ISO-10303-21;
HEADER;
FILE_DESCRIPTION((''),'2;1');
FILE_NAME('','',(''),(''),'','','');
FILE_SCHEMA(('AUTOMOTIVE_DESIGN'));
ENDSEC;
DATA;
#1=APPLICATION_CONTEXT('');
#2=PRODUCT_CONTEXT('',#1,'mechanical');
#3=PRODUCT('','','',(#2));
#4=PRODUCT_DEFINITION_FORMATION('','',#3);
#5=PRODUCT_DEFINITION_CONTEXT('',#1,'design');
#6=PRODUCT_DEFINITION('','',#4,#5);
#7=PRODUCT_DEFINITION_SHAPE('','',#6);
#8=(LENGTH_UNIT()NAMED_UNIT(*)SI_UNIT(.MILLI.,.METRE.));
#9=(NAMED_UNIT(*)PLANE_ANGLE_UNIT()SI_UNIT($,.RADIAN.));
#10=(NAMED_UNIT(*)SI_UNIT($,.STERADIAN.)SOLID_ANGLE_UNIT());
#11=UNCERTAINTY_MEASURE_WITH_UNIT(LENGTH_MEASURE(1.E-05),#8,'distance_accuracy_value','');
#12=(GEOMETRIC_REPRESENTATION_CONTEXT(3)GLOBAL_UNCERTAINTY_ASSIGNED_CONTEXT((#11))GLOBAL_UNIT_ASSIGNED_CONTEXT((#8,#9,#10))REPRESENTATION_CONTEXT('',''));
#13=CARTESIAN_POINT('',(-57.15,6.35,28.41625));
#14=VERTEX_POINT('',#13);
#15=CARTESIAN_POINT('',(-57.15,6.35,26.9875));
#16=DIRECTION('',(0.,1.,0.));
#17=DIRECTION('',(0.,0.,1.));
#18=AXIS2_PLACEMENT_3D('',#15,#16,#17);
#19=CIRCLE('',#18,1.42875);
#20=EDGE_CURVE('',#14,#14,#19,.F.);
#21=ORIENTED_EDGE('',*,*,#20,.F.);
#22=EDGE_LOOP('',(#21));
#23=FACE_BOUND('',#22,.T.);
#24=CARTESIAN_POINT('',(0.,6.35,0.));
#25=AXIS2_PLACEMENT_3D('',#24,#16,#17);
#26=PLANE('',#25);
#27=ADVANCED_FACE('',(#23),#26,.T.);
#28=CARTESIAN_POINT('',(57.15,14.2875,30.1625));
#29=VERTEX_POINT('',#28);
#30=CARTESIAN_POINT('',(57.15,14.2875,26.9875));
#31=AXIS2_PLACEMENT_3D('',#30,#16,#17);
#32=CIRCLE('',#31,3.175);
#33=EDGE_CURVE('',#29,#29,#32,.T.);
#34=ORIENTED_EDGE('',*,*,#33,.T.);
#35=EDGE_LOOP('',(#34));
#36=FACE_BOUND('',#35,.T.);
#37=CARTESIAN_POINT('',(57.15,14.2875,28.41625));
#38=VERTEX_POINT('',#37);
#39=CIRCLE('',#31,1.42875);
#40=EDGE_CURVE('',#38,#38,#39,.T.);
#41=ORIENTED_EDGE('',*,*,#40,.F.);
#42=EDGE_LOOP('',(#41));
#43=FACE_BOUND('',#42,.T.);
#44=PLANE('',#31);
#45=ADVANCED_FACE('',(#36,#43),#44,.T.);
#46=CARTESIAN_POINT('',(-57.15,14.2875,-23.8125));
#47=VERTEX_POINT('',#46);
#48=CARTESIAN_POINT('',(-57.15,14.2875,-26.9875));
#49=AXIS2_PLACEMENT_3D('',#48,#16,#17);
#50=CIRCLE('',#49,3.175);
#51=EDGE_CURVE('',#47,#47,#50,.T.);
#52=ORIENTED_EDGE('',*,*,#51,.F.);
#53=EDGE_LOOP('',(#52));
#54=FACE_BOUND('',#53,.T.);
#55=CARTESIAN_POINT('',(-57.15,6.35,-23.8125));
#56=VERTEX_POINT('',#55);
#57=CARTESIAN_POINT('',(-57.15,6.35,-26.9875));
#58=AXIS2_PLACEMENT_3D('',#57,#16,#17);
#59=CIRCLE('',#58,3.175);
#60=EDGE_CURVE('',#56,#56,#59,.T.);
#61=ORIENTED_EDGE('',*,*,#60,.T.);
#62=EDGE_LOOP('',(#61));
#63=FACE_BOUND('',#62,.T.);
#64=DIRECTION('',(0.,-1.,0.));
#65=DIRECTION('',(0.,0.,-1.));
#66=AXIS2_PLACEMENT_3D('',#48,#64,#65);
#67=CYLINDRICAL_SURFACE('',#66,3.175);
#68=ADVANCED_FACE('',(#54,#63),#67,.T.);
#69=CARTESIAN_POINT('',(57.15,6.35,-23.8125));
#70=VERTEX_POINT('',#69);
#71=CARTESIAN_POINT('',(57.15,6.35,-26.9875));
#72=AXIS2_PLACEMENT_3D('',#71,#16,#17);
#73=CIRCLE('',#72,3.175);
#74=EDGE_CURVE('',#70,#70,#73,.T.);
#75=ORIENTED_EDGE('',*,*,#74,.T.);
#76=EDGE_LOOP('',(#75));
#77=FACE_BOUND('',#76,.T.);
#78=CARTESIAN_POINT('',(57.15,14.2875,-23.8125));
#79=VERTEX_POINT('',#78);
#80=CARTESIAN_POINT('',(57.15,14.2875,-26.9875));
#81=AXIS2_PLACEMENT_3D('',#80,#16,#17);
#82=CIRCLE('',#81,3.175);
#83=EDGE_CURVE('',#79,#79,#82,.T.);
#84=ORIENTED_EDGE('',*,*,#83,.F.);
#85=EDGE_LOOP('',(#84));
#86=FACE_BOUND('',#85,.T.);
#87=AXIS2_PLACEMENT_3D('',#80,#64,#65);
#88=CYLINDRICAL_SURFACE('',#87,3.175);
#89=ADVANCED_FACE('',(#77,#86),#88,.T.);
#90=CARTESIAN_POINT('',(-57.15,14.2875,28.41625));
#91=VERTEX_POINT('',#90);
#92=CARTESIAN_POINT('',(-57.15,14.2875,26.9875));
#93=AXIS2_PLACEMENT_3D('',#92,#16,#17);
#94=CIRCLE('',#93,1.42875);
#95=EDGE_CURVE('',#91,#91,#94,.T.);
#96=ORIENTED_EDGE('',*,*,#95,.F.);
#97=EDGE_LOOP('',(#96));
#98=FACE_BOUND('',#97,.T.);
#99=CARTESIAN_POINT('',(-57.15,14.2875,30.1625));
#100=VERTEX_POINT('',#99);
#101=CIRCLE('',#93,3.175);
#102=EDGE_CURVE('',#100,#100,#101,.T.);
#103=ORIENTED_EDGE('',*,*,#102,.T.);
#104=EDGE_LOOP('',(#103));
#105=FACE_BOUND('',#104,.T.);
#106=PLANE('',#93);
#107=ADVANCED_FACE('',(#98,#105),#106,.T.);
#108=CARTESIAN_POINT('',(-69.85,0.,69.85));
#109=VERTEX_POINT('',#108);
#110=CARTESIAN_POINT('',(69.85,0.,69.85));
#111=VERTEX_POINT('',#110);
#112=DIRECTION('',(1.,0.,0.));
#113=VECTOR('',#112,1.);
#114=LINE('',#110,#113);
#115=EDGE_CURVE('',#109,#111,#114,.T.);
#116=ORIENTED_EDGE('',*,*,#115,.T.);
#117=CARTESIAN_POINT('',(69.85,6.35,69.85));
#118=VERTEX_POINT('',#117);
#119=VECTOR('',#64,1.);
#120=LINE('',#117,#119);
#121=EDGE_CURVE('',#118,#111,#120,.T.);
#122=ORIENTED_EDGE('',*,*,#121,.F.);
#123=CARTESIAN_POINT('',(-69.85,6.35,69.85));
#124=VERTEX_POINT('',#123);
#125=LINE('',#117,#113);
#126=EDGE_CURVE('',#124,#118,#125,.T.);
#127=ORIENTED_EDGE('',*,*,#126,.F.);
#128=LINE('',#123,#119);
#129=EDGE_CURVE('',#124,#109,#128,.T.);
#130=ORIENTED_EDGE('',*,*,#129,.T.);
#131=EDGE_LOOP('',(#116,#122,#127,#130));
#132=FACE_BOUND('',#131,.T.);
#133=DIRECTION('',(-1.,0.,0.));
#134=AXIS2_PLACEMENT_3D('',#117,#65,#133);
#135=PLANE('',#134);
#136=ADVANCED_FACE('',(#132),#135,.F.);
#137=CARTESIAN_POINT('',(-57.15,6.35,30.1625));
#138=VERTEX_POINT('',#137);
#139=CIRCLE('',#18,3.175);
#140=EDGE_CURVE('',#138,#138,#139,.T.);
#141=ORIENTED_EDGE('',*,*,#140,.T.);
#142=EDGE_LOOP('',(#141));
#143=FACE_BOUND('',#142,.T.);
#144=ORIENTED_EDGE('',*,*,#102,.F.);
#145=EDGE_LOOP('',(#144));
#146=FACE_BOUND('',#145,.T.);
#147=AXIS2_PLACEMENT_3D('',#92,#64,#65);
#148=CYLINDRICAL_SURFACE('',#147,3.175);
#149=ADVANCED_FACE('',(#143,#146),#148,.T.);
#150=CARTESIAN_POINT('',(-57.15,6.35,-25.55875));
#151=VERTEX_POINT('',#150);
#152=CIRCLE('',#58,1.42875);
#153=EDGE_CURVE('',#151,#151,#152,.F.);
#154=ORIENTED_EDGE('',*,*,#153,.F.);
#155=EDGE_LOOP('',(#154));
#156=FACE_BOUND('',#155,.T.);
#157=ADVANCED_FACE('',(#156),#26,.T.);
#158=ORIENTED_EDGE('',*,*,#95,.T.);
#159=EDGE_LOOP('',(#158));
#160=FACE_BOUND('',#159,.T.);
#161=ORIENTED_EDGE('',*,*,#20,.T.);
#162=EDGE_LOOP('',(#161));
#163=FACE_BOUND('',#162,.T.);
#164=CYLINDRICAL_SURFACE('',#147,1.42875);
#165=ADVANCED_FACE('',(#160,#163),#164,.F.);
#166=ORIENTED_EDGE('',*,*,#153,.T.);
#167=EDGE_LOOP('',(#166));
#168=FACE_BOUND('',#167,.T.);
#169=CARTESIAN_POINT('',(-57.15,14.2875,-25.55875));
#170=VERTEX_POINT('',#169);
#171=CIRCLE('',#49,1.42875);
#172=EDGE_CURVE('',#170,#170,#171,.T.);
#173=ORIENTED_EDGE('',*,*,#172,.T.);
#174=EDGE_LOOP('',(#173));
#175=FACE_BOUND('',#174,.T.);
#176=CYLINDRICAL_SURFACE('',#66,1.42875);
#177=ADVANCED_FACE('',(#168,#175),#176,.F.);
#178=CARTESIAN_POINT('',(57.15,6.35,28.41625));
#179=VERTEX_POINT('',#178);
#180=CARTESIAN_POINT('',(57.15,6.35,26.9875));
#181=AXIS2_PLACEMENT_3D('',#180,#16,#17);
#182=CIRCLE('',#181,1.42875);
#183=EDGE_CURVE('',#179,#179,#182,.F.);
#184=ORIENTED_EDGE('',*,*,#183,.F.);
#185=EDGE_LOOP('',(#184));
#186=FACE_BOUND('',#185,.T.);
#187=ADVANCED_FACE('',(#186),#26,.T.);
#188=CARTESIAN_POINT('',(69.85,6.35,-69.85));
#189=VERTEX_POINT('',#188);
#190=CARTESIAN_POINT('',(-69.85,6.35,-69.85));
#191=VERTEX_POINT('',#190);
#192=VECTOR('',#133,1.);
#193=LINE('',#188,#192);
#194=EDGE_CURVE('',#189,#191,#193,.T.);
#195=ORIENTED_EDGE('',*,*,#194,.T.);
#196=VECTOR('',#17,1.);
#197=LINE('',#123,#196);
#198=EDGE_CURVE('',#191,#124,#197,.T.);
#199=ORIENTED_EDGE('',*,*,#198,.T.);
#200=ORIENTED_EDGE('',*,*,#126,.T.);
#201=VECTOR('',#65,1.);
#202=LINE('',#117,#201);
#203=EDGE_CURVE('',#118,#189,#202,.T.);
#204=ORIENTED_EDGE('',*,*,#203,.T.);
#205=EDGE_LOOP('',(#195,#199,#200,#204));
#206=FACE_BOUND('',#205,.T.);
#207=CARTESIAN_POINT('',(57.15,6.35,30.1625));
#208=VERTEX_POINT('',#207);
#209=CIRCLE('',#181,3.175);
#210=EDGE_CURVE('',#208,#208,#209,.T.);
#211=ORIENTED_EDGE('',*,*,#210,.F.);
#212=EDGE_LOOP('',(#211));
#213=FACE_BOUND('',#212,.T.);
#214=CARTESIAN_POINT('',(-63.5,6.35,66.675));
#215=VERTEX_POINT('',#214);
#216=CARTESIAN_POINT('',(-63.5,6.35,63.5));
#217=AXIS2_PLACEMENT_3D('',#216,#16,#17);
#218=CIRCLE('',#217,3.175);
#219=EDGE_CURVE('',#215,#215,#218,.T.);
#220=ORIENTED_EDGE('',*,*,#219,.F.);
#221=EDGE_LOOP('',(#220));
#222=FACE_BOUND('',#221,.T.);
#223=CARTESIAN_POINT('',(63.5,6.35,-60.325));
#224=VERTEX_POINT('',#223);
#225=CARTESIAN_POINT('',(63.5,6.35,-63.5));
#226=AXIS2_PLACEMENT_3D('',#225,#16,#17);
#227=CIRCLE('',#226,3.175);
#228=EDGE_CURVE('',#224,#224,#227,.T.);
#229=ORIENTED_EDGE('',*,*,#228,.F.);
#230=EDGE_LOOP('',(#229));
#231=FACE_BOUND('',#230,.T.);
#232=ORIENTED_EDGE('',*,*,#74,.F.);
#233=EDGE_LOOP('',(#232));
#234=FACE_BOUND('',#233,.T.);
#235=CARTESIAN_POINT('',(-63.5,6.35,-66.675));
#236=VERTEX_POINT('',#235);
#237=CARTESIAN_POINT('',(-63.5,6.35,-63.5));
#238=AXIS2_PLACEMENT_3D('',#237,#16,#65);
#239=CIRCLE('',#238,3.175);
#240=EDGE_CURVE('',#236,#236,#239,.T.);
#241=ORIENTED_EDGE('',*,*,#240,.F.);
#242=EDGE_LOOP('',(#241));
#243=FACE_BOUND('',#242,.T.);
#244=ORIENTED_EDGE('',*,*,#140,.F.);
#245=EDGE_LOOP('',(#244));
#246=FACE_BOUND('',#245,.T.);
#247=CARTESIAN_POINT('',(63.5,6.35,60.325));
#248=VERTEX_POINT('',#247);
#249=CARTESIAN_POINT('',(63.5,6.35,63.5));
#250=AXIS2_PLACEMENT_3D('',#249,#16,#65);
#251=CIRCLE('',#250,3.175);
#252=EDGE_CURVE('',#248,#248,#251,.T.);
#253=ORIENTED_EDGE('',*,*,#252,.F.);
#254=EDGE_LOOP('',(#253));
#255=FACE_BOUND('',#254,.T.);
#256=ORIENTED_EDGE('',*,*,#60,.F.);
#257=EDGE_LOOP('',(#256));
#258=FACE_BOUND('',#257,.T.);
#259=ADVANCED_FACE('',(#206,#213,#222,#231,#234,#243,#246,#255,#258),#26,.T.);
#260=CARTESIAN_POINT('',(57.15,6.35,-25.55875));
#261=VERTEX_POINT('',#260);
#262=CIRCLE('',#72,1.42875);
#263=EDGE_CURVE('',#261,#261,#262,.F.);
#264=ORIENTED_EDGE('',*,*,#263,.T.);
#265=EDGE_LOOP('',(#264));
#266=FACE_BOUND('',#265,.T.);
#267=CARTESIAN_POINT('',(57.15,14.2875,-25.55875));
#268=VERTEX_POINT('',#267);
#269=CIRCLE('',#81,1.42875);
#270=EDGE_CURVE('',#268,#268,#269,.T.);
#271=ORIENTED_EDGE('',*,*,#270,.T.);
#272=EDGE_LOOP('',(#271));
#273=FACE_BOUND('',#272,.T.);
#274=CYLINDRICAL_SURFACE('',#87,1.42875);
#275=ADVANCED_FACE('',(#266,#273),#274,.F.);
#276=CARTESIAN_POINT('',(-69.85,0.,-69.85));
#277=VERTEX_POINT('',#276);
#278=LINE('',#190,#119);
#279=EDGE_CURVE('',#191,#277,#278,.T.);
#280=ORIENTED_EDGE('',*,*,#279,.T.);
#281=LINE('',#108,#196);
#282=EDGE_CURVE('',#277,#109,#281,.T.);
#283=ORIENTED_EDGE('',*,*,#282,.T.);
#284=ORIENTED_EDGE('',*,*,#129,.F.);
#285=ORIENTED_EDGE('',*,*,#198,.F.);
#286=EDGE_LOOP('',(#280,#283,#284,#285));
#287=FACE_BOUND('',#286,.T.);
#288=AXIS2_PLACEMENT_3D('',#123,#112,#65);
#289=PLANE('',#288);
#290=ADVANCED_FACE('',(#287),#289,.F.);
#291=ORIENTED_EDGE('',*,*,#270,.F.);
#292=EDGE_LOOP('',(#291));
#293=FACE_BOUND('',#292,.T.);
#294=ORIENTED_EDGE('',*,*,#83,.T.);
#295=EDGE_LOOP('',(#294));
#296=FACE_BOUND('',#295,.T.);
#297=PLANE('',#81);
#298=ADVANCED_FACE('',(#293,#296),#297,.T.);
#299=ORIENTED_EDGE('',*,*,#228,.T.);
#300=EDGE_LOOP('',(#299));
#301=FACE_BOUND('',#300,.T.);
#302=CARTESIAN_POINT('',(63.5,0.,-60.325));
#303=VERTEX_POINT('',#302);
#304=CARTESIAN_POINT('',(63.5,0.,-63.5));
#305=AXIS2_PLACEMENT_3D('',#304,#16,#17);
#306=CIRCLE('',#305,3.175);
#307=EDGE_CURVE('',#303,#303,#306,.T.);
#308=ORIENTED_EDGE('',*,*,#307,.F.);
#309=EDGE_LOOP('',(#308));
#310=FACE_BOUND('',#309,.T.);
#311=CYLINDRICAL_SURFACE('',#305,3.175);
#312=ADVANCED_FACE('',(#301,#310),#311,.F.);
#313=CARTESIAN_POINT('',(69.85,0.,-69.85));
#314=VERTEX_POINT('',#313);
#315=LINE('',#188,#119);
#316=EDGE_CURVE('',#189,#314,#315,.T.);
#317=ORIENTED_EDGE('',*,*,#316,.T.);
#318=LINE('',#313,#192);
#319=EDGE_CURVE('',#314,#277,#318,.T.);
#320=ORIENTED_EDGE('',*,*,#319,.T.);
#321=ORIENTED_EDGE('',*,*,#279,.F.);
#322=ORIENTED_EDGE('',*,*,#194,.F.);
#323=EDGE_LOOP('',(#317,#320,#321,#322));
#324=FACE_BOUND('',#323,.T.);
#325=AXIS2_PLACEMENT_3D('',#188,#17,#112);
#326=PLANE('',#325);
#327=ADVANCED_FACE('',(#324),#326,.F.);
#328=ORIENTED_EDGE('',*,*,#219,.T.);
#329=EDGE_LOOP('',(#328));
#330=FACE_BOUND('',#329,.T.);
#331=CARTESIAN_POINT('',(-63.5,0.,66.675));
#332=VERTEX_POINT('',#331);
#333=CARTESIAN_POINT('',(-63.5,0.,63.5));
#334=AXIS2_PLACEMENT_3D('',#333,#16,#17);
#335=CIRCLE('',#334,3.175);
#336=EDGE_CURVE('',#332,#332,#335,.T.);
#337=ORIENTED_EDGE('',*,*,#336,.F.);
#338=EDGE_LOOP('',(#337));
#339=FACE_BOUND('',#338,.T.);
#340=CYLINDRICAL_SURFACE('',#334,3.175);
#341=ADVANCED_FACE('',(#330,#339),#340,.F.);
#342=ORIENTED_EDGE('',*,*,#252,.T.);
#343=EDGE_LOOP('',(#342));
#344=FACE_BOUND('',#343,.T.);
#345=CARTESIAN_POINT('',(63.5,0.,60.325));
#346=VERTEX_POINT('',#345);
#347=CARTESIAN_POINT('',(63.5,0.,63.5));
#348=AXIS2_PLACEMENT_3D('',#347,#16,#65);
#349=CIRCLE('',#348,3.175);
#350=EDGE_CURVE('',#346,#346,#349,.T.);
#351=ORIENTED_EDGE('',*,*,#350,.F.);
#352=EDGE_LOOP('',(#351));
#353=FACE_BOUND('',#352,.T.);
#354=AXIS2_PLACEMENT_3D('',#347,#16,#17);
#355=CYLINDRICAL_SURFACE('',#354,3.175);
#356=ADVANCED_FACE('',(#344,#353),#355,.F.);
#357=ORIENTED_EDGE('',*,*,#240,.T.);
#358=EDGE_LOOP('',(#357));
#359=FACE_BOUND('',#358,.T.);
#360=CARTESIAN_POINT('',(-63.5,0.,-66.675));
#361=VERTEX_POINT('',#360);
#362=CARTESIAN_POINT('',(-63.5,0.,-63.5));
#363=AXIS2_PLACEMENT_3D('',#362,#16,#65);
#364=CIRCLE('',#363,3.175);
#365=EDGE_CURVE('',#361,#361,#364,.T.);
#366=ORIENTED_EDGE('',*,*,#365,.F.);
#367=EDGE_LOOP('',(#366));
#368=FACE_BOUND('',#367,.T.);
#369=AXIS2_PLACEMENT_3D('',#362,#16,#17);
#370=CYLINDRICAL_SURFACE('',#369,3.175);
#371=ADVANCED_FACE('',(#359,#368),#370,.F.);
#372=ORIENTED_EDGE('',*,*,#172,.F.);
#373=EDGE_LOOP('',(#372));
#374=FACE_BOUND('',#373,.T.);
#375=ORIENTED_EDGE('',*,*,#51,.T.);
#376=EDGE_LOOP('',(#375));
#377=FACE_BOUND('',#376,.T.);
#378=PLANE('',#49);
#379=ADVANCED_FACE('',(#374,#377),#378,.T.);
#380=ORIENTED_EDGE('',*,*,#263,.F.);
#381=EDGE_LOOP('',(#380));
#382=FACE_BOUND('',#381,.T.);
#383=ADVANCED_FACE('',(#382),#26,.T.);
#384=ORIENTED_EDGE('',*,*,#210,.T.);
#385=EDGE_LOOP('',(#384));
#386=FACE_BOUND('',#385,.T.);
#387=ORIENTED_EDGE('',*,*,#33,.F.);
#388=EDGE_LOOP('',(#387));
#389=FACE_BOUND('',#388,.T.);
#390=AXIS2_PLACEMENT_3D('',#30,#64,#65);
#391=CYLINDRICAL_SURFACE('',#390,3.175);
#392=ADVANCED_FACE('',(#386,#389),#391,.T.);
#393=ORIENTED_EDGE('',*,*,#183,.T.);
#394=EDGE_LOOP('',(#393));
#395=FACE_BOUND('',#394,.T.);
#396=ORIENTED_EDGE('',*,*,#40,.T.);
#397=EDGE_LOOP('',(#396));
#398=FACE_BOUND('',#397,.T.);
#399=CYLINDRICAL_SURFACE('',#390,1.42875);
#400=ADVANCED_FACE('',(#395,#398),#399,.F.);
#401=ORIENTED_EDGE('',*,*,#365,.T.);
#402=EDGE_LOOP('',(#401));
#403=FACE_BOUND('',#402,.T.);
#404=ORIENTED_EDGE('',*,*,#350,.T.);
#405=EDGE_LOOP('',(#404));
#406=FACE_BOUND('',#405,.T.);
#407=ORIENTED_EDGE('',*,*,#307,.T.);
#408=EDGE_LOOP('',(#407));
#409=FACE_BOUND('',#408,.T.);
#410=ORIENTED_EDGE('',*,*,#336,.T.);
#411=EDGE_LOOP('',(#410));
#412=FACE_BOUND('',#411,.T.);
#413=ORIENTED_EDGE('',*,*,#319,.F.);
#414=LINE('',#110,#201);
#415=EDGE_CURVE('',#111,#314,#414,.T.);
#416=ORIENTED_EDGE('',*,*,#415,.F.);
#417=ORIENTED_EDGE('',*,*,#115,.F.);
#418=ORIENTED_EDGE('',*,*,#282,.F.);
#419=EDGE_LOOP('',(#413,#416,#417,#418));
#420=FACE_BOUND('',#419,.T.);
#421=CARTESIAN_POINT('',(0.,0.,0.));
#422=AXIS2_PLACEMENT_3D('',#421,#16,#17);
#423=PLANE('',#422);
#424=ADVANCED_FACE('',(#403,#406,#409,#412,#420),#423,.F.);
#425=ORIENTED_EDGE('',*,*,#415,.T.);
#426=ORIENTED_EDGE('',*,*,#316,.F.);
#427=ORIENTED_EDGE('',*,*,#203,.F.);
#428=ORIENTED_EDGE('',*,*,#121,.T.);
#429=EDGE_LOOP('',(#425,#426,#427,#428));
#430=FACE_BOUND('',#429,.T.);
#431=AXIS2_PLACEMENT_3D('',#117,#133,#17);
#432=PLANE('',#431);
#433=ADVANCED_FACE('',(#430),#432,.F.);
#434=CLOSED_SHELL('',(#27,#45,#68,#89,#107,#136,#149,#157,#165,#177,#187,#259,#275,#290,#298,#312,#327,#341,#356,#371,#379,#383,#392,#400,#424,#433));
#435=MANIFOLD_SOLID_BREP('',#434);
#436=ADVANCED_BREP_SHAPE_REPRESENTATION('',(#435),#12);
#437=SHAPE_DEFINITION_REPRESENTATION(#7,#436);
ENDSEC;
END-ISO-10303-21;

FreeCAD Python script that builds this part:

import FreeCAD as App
import Part
import Sketcher

V = App.Vector
Q = App.Units.Quantity


def add_polygon(sketch, points):
    """Adds a closed chain of lines whose ends are joined by coincident constraints."""
    first, n = sketch.GeometryCount, len(points)
    for a, b in zip(points, points[1:] + points[:1]):
        sketch.addGeometry(Part.LineSegment(App.Vector(*a, 0), App.Vector(*b, 0)), False)
    for i in range(n):
        sketch.addConstraint(Sketcher.Constraint("Coincident", first + i, 2, first + (i + 1) % n, 1))

doc = App.newDocument("Part")
body = doc.addObject("PartDesign::Body", "Body")

sketch1 = body.newObject("Sketcher::SketchObject", "Sketch")
sketch1.AttachmentSupport = (doc.getObject("XZ_Plane"), [""])
sketch1.MapMode = "FlatFace"
add_polygon(sketch1, [(-69.85, -69.85), (-69.85, 69.85), (69.85, 69.85), (69.85, -69.85)])
sketch1.addConstraint(Sketcher.Constraint("Vertical", 0))
sketch1.addConstraint(Sketcher.Constraint("Horizontal", 1))
sketch1.addConstraint(Sketcher.Constraint("Vertical", 2))
sketch1.addConstraint(Sketcher.Constraint("Horizontal", 3))
sketch1.addConstraint(Sketcher.Constraint("Symmetric", 0, 2, 2, 2, -1, 1))
sketch1.addConstraint(Sketcher.Constraint("Equal", 3, 0))
sketch1.addConstraint(Sketcher.Constraint("DistanceX", 1, 1, 1, 2, Q("5.5 in")))
pad1 = body.newObject("PartDesign::Pad", "Pad")
pad1.Profile = sketch1
pad1.Length = Q("0.25 in")
pad1.Reversed = True

sketch2 = body.newObject("Sketcher::SketchObject", "Sketch001")
sketch2.AttachmentSupport = (doc.getObject("XZ_Plane"), [""])
sketch2.MapMode = "FlatFace"
sketch2.AttachmentOffset = App.Placement(V(0, 0, -0.25 * 25.4), App.Rotation())
sketch2.addGeometry(Part.Circle(V(-63.5, 63.5, 0), V(0, 0, 1), 3.175), False)
sketch2.addGeometry(Part.Circle(V(63.5, 63.5, 0), V(0, 0, 1), 3.175), False)
sketch2.addGeometry(Part.Circle(V(63.5, -63.5, 0), V(0, 0, 1), 3.175), False)
sketch2.addGeometry(Part.Circle(V(-63.5, -63.5, 0), V(0, 0, 1), 3.175), False)
sketch2.addConstraint(Sketcher.Constraint("Equal", 0, 1))
sketch2.addConstraint(Sketcher.Constraint("Equal", 1, 2))
sketch2.addConstraint(Sketcher.Constraint("Equal", 2, 3))
sketch2.addConstraint(Sketcher.Constraint("Symmetric", 0, 3, 2, 3, -1, 1))
sketch2.addConstraint(Sketcher.Constraint("Symmetric", 1, 3, 3, 3, -1, 1))
sketch2.addConstraint(Sketcher.Constraint("Symmetric", 0, 3, 1, 3, -2))
sketch2.addConstraint(Sketcher.Constraint("Diameter", 0, Q("0.25 in")))
sketch2.addConstraint(Sketcher.Constraint("DistanceX", 0, 3, 1, 3, Q("5 in")))
sketch2.addConstraint(Sketcher.Constraint("DistanceY", 2, 3, 1, 3, Q("5 in")))
pocket1 = body.newObject("PartDesign::Pocket", "Pocket")
pocket1.Profile = sketch2
pocket1.Length = Q("0.25 in")
pocket1.Reversed = True

sketch3 = body.newObject("Sketcher::SketchObject", "Sketch002")
sketch3.AttachmentSupport = (doc.getObject("XZ_Plane"), [""])
sketch3.MapMode = "FlatFace"
sketch3.AttachmentOffset = App.Placement(V(0, 0, -0.25 * 25.4), App.Rotation())
sketch3.addGeometry(Part.Circle(V(-57.15, -26.9875, 0), V(0, 0, 1), 3.175), False)
sketch3.addGeometry(Part.Circle(V(-57.15, -26.9875, 0), V(0, 0, 1), 1.42875), False)
sketch3.addGeometry(Part.Circle(V(-57.15, 26.9875, 0), V(0, 0, 1), 3.175), False)
sketch3.addGeometry(Part.Circle(V(-57.15, 26.9875, 0), V(0, 0, 1), 1.42875), False)
sketch3.addGeometry(Part.Circle(V(57.15, 26.9875, 0), V(0, 0, 1), 3.175), False)
sketch3.addGeometry(Part.Circle(V(57.15, 26.9875, 0), V(0, 0, 1), 1.42875), False)
sketch3.addGeometry(Part.Circle(V(57.15, -26.9875, 0), V(0, 0, 1), 3.175), False)
sketch3.addGeometry(Part.Circle(V(57.15, -26.9875, 0), V(0, 0, 1), 1.42875), False)
sketch3.addConstraint(Sketcher.Constraint("Coincident", 1, 3, 0, 3))
sketch3.addConstraint(Sketcher.Constraint("Coincident", 3, 3, 2, 3))
sketch3.addConstraint(Sketcher.Constraint("Coincident", 5, 3, 4, 3))
sketch3.addConstraint(Sketcher.Constraint("Coincident", 7, 3, 6, 3))
sketch3.addConstraint(Sketcher.Constraint("Equal", 0, 2))
sketch3.addConstraint(Sketcher.Constraint("Equal", 1, 3))
sketch3.addConstraint(Sketcher.Constraint("Equal", 2, 4))
sketch3.addConstraint(Sketcher.Constraint("Equal", 3, 5))
sketch3.addConstraint(Sketcher.Constraint("Equal", 4, 6))
sketch3.addConstraint(Sketcher.Constraint("Equal", 5, 7))
sketch3.addConstraint(Sketcher.Constraint("Symmetric", 0, 3, 4, 3, -1, 1))
sketch3.addConstraint(Sketcher.Constraint("Symmetric", 2, 3, 6, 3, -1, 1))
sketch3.addConstraint(Sketcher.Constraint("Symmetric", 2, 3, 4, 3, -2))
sketch3.addConstraint(Sketcher.Constraint("Diameter", 0, Q("0.25 in")))
sketch3.addConstraint(Sketcher.Constraint("Diameter", 1, Q("0.1125 in")))
sketch3.addConstraint(Sketcher.Constraint("DistanceX", 2, 3, 4, 3, Q("4.5 in")))
sketch3.addConstraint(Sketcher.Constraint("DistanceY", 0, 3, -1, 1, Q("1.0625 in")))
pad2 = body.newObject("PartDesign::Pad", "Pad001")
pad2.Profile = sketch3
pad2.Length = Q("0.3125 in")
pad2.Reversed = True

doc.recompute()
